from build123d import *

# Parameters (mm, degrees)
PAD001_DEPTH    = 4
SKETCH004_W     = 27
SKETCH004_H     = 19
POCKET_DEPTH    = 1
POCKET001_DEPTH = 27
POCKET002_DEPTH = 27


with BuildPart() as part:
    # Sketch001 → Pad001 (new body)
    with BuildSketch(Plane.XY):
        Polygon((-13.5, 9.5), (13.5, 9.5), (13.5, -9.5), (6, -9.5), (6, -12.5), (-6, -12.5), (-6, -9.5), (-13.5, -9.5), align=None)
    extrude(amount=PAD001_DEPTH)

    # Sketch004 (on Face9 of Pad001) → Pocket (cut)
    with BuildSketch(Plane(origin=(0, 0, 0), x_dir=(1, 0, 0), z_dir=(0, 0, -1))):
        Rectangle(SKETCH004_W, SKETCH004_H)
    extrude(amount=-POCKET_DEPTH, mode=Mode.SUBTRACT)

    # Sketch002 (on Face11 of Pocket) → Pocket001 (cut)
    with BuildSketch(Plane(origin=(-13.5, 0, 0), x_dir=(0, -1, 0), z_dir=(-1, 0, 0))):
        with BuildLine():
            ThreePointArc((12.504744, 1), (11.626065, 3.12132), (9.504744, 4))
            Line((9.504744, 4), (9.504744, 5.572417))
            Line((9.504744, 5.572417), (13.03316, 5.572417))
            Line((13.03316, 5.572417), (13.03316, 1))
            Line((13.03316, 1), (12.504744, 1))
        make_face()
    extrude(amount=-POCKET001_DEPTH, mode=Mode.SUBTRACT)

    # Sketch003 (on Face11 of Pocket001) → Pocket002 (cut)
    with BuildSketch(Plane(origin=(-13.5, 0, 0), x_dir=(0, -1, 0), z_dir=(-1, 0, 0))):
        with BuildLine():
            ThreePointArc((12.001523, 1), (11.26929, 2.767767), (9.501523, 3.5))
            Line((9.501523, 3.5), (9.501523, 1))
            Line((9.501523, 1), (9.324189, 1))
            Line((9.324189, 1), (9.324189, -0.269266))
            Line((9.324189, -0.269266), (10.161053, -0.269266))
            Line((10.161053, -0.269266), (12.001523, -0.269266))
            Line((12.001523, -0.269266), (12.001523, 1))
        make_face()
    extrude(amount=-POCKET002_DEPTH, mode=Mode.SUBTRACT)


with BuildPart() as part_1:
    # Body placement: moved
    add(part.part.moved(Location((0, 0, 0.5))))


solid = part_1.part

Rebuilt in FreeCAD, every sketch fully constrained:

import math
import FreeCAD as App
import Part
import Sketcher
from FreeCAD import Vector
Q = App.Units.Quantity


def add_polygon(sketch, points):
    """Adds a closed chain of lines whose ends are joined by coincident constraints."""
    first, n = sketch.GeometryCount, len(points)
    for a, b in zip(points, points[1:] + points[:1]):
        sketch.addGeometry(Part.LineSegment(App.Vector(*a, 0), App.Vector(*b, 0)), False)
    for i in range(n):
        sketch.addConstraint(Sketcher.Constraint("Coincident", first + i, 2, first + (i + 1) % n, 1))

doc = App.newDocument("Part")
body = doc.addObject("PartDesign::Body", "Body")

# Sketch on XY plane
sketch1 = doc.addObject("Sketcher::SketchObject", "Sketch")
body.addObject(sketch1)
sketch1.AttachmentSupport = (doc.XY_Plane, [""])
sketch1.MapMode = "FlatFace"
add_polygon(sketch1, [(13.5, 9.5), (-13.5, 9.5), (-13.5, -9.5), (-6, -9.5), (-6, -12.5), (6, -12.5), (6, -9.5), (13.5, -9.5)])  # lines 0-7
sketch1.addConstraint(Sketcher.Constraint("Horizontal", 0))
sketch1.addConstraint(Sketcher.Constraint("Vertical", 1))
sketch1.addConstraint(Sketcher.Constraint("Horizontal", 2))
sketch1.addConstraint(Sketcher.Constraint("Vertical", 3))
sketch1.addConstraint(Sketcher.Constraint("Horizontal", 4))
sketch1.addConstraint(Sketcher.Constraint("Vertical", 5))
sketch1.addConstraint(Sketcher.Constraint("Horizontal", 6))
sketch1.addConstraint(Sketcher.Constraint("Vertical", 7))
sketch1.addConstraint(Sketcher.Constraint("Symmetric", 0, 2, 6, 2, -1, 1))
sketch1.addConstraint(Sketcher.Constraint("Symmetric", 2, 2, 5, 2, -2))
sketch1.addConstraint(Sketcher.Constraint("DistanceX", 0, 2, 0, 1, Q("27 mm")))
sketch1.addConstraint(Sketcher.Constraint("DistanceX", 4, 1, 4, 2, Q("12 mm")))
sketch1.addConstraint(Sketcher.Constraint("DistanceY", 1, 2, 1, 1, Q("19 mm")))
sketch1.addConstraint(Sketcher.Constraint("DistanceY", 3, 2, 3, 1, Q("3 mm")))
pad1 = doc.addObject("PartDesign::Pad", "Pad")
body.addObject(pad1)
pad1.Profile = sketch1
pad1.Length = 4

# Sketch on XY plane
sketch2 = doc.addObject("Sketcher::SketchObject", "Sketch001")
body.addObject(sketch2)
sketch2.AttachmentSupport = (doc.XY_Plane, [""])
sketch2.MapMode = "FlatFace"
add_polygon(sketch2, [(-14, -10), (-14, 10), (14, 10), (14, -10)])  # lines 0-3
sketch2.addConstraint(Sketcher.Constraint("Vertical", 0))
sketch2.addConstraint(Sketcher.Constraint("Horizontal", 1))
sketch2.addConstraint(Sketcher.Constraint("Vertical", 2))
sketch2.addConstraint(Sketcher.Constraint("Horizontal", 3))
sketch2.addConstraint(Sketcher.Constraint("Symmetric", 0, 2, 2, 2, -1, 1))
sketch2.addConstraint(Sketcher.Constraint("DistanceX", 1, 1, 1, 2, Q("27 mm")))
sketch2.addConstraint(Sketcher.Constraint("DistanceY", 0, 1, 0, 2, Q("19 mm")))
pocket1 = doc.addObject("PartDesign::Pocket", "Pocket")
body.addObject(pocket1)
pocket1.Profile = sketch2
pocket1.Length = 1
pocket1.Reversed = True

# Sketch on YZ plane
sketch3 = doc.addObject("Sketcher::SketchObject", "Sketch002")
body.addObject(sketch3)
sketch3.AttachmentSupport = (doc.YZ_Plane, [""])
sketch3.MapMode = "FlatFace"
sketch3.AttachmentOffset = App.Placement(Vector(0, 0, -13.5), App.Rotation())
sketch3.addGeometry(Part.ArcOfCircle(Part.Circle(Vector(-9.5, 1, 0), Vector(0, 0, 1), 3), math.radians(90), math.radians(180)), False)
sketch3.addGeometry(Part.LineSegment(Vector(-12.5, 1, 0), Vector(-13, 1, 0)), False)
sketch3.addGeometry(Part.LineSegment(Vector(-13, 1, 0), Vector(-13, 5.6, 0)), False)
sketch3.addGeometry(Part.LineSegment(Vector(-13, 5.6, 0), Vector(-9.5, 5.6, 0)), False)
sketch3.addGeometry(Part.LineSegment(Vector(-9.5, 5.6, 0), Vector(-9.5, 4, 0)), False)
sketch3.addConstraint(Sketcher.Constraint("Coincident", 0, 2, 1, 1))
sketch3.addConstraint(Sketcher.Constraint("Coincident", 1, 2, 2, 1))
sketch3.addConstraint(Sketcher.Constraint("Coincident", 2, 2, 3, 1))
sketch3.addConstraint(Sketcher.Constraint("Coincident", 3, 2, 4, 1))
sketch3.addConstraint(Sketcher.Constraint("Coincident", 4, 2, 0, 1))
sketch3.addConstraint(Sketcher.Constraint("Horizontal", 1))
sketch3.addConstraint(Sketcher.Constraint("Vertical", 2))
sketch3.addConstraint(Sketcher.Constraint("Horizontal", 3))
sketch3.addConstraint(Sketcher.Constraint("Vertical", 4))
sketch3.addConstraint(Sketcher.Constraint("Vertical", 0, 3, 3, 2))
sketch3.addConstraint(Sketcher.Constraint("Radius", 0, Q("2.999999 mm")))
sketch3.addConstraint(Sketcher.Constraint("DistanceY", -1, 1, 0, 3, Q("1.000001 mm")))
sketch3.addConstraint(Sketcher.Constraint("DistanceY", -1, 1, 0, 2, Q("1 mm")))
sketch3.addConstraint(Sketcher.Constraint("DistanceX", 1, 2, 1, 1, Q("0.528416 mm")))
sketch3.addConstraint(Sketcher.Constraint("DistanceY", 2, 1, 2, 2, Q("4.572417 mm")))
sketch3.addConstraint(Sketcher.Constraint("DistanceX", 1, 2, -1, 1, Q("13.03316 mm")))
pocket2 = doc.addObject("PartDesign::Pocket", "Pocket001")
body.addObject(pocket2)
pocket2.Profile = sketch3
pocket2.Length = 27
pocket2.Reversed = True

# Sketch on YZ plane
sketch4 = doc.addObject("Sketcher::SketchObject", "Sketch003")
body.addObject(sketch4)
sketch4.AttachmentSupport = (doc.YZ_Plane, [""])
sketch4.MapMode = "FlatFace"
sketch4.AttachmentOffset = App.Placement(Vector(0, 0, -13.5), App.Rotation())
sketch4.addGeometry(Part.ArcOfCircle(Part.Circle(Vector(-9.5, 1, 0), Vector(0, 0, 1), 2.5), math.radians(90), math.radians(180)), False)
sketch4.addGeometry(Part.LineSegment(Vector(-9.5, 3.5, 0), Vector(-9.5, 1, 0)), False)
sketch4.addGeometry(Part.LineSegment(Vector(-9.5, 1, 0), Vector(-9.32, 1, 0)), False)
sketch4.addGeometry(Part.LineSegment(Vector(-9.32, 1, 0), Vector(-9.32, -0.27, 0)), False)
sketch4.addGeometry(Part.LineSegment(Vector(-9.32, -0.27, 0), Vector(-12, -0.27, 0)), False)
sketch4.addGeometry(Part.LineSegment(Vector(-12, -0.27, 0), Vector(-12, 1, 0)), False)
sketch4.addConstraint(Sketcher.Constraint("Coincident", 0, 1, 1, 1))
sketch4.addConstraint(Sketcher.Constraint("Coincident", 1, 2, 2, 1))
sketch4.addConstraint(Sketcher.Constraint("Coincident", 2, 2, 3, 1))
sketch4.addConstraint(Sketcher.Constraint("Coincident", 3, 2, 4, 1))
sketch4.addConstraint(Sketcher.Constraint("Coincident", 4, 2, 5, 1))
sketch4.addConstraint(Sketcher.Constraint("Tangent", 5, 2, 0, 2))
sketch4.addConstraint(Sketcher.Constraint("Vertical", 1))
sketch4.addConstraint(Sketcher.Constraint("Horizontal", 2))
sketch4.addConstraint(Sketcher.Constraint("Vertical", 3))
sketch4.addConstraint(Sketcher.Constraint("Horizontal", 4))
sketch4.addConstraint(Sketcher.Constraint("Vertical", 5))
sketch4.addConstraint(Sketcher.Constraint("Coincident", 1, 2, 0, 3))
sketch4.addConstraint(Sketcher.Constraint("Radius", 0, Q("2.5 mm")))
sketch4.addConstraint(Sketcher.Constraint("DistanceY", -1, 1, 0, 3, Q("1 mm")))
sketch4.addConstraint(Sketcher.Constraint("DistanceX", 2, 1, 2, 2, Q("0.177334 mm")))
sketch4.addConstraint(Sketcher.Constraint("DistanceY", 3, 2, 3, 1, Q("1.269266 mm")))
sketch4.addConstraint(Sketcher.Constraint("DistanceX", 2, 2, -1, 1, Q("9.324189 mm")))
pocket3 = doc.addObject("PartDesign::Pocket", "Pocket002")
body.addObject(pocket3)
pocket3.Profile = sketch4
pocket3.Length = 27
pocket3.Reversed = True
body2 = doc.addObject("PartDesign::Body", "Body001")
doc.recompute()

body.Placement = App.Placement(Vector(0, 0, 0.5), App.Rotation(Vector(0, 0, 1), 0))
boolean = doc.addObject("PartDesign::Boolean", "Boolean")
body2.addObject(boolean)
boolean.Type = "Fuse"
boolean.addObjects([body])

doc.recompute()
